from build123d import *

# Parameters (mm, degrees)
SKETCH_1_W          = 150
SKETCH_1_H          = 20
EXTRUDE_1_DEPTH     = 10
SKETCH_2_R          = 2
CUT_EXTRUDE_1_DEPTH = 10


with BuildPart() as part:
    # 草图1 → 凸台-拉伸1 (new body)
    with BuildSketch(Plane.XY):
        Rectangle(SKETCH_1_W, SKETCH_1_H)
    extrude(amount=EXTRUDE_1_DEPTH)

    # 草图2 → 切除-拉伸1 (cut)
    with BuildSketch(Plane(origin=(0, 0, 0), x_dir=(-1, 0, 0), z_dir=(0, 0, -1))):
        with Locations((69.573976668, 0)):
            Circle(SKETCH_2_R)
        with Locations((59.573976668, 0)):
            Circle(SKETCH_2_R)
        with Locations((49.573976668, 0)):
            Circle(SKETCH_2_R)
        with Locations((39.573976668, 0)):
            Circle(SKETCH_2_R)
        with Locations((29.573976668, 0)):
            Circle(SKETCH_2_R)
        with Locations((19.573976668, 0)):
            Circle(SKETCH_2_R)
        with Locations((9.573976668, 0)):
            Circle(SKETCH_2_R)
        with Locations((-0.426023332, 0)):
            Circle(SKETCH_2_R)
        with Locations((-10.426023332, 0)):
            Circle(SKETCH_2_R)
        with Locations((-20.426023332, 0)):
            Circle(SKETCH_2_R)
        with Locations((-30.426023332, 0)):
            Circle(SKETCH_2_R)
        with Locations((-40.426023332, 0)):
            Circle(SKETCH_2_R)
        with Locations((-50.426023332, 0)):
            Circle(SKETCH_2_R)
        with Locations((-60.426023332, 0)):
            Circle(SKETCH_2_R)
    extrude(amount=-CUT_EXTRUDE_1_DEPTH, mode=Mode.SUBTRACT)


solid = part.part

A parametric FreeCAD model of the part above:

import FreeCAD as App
import Part
import Sketcher
from FreeCAD import Vector

doc = App.newDocument("Part")
params = doc.addObject("Spreadsheet::Sheet", "Params")
for row, (alias, value) in enumerate([
    ("sketch1_width", "150 mm"),
    ("sketch1_height", "20 mm"),
    ("pad1_length", "10 mm"),
    ("sketch2_diameter", "4 mm"),
    ("pocket1_length", "10 mm"),
], start=1):
    params.set(f"A{row}", alias)
    params.set(f"B{row}", "=" + value)
    params.setAlias(f"B{row}", alias)

body = doc.addObject("PartDesign::Body", "Body")

sketch1 = body.newObject("Sketcher::SketchObject", "Sketch")
sketch1.AttachmentSupport = (doc.getObject("XY_Plane"), [""])
sketch1.MapMode = "FlatFace"
sketch1.addGeometry([
    Part.LineSegment(Vector(-75, 10, 0), Vector(-75, -10, 0)),
    Part.LineSegment(Vector(-75, -10, 0), Vector(75, -10, 0)),
    Part.LineSegment(Vector(75, -10, 0), Vector(75, 10, 0)),
    Part.LineSegment(Vector(75, 10, 0), Vector(-75, 10, 0)),
], False)
sketch1.addConstraint([
    Sketcher.Constraint("Coincident", 0, 2, 1, 1),
    Sketcher.Constraint("Coincident", 1, 2, 2, 1),
    Sketcher.Constraint("Coincident", 2, 2, 3, 1),
    Sketcher.Constraint("Coincident", 3, 2, 0, 1),
    Sketcher.Constraint("Vertical", 0),
    Sketcher.Constraint("Horizontal", 1),
    Sketcher.Constraint("Vertical", 2),
    Sketcher.Constraint("Horizontal", 3),
    Sketcher.Constraint("Symmetric", 0, 2, 2, 2, -1, 1),
    Sketcher.Constraint("DistanceX", 1, 1, 1, 2, 150.0),
    Sketcher.Constraint("DistanceY", 0, 2, 0, 1, 20.0),
])
sketch1.setExpression("Constraints[9]", "Params.sketch1_width")
sketch1.setExpression("Constraints[10]", "Params.sketch1_height")
pad1 = body.newObject("PartDesign::Pad", "Pad")
pad1.Profile = sketch1
pad1.setExpression("Length", "Params.pad1_length")

sketch2 = body.newObject("Sketcher::SketchObject", "Sketch001")
sketch2.AttachmentSupport = (doc.getObject("XY_Plane"), [""])
sketch2.MapMode = "FlatFace"
sketch2.addGeometry([
    Part.Circle(Vector(-69.6, 0, 0), Vector(0, 0, 1), 2),
    Part.Circle(Vector(-59.6, 0, 0), Vector(0, 0, 1), 2),
    Part.Circle(Vector(-49.6, 0, 0), Vector(0, 0, 1), 2),
    Part.Circle(Vector(-39.6, 0, 0), Vector(0, 0, 1), 2),
    Part.Circle(Vector(-29.6, 0, 0), Vector(0, 0, 1), 2),
    Part.Circle(Vector(-19.6, 0, 0), Vector(0, 0, 1), 2),
    Part.Circle(Vector(-9.6, 0, 0), Vector(0, 0, 1), 2),
    Part.Circle(Vector(0.4, 0, 0), Vector(0, 0, 1), 2),
    Part.Circle(Vector(10.4, 0, 0), Vector(0, 0, 1), 2),
    Part.Circle(Vector(20.4, 0, 0), Vector(0, 0, 1), 2),
    Part.Circle(Vector(30.4, 0, 0), Vector(0, 0, 1), 2),
    Part.Circle(Vector(40.4, 0, 0), Vector(0, 0, 1), 2),
    Part.Circle(Vector(50.4, 0, 0), Vector(0, 0, 1), 2),
    Part.Circle(Vector(60.4, 0, 0), Vector(0, 0, 1), 2),
], False)
sketch2.addConstraint([
    Sketcher.Constraint("Equal", 0, 1),
    Sketcher.Constraint("Equal", 1, 2),
    Sketcher.Constraint("Equal", 2, 3),
    Sketcher.Constraint("Equal", 3, 4),
    Sketcher.Constraint("Equal", 4, 5),
    Sketcher.Constraint("Equal", 5, 6),
    Sketcher.Constraint("Equal", 6, 7),
    Sketcher.Constraint("Equal", 7, 8),
    Sketcher.Constraint("Equal", 8, 9),
    Sketcher.Constraint("Equal", 9, 10),
    Sketcher.Constraint("Equal", 10, 11),
    Sketcher.Constraint("Equal", 11, 12),
    Sketcher.Constraint("Equal", 12, 13),
    Sketcher.Constraint("PointOnObject", 0, 3, -1),
    Sketcher.Constraint("PointOnObject", 1, 3, -1),
    Sketcher.Constraint("PointOnObject", 2, 3, -1),
    Sketcher.Constraint("PointOnObject", 3, 3, -1),
    Sketcher.Constraint("PointOnObject", 4, 3, -1),
    Sketcher.Constraint("PointOnObject", 5, 3, -1),
    Sketcher.Constraint("PointOnObject", 6, 3, -1),
    Sketcher.Constraint("PointOnObject", 7, 3, -1),
    Sketcher.Constraint("PointOnObject", 8, 3, -1),
    Sketcher.Constraint("PointOnObject", 9, 3, -1),
    Sketcher.Constraint("PointOnObject", 10, 3, -1),
    Sketcher.Constraint("PointOnObject", 11, 3, -1),
    Sketcher.Constraint("PointOnObject", 12, 3, -1),
    Sketcher.Constraint("PointOnObject", 13, 3, -1),
    Sketcher.Constraint("Diameter", 0, 4.0),
    Sketcher.Constraint("DistanceX", 0, 3, 1, 3, 10.0),
    Sketcher.Constraint("DistanceX", 1, 3, 2, 3, 10.0),
    Sketcher.Constraint("DistanceX", 2, 3, 3, 3, 10.0),
    Sketcher.Constraint("DistanceX", 3, 3, 4, 3, 10.0),
    Sketcher.Constraint("DistanceX", 4, 3, 5, 3, 10.0),
    Sketcher.Constraint("DistanceX", 5, 3, 6, 3, 10.0),
    Sketcher.Constraint("DistanceX", 6, 3, 7, 3, 10.0),
    Sketcher.Constraint("DistanceX", 7, 3, 8, 3, 10.0),
    Sketcher.Constraint("DistanceX", 8, 3, 9, 3, 10.0),
    Sketcher.Constraint("DistanceX", 9, 3, 10, 3, 10.0),
    Sketcher.Constraint("DistanceX", 10, 3, 11, 3, 10.0),
    Sketcher.Constraint("DistanceX", 11, 3, 12, 3, 10.0),
    Sketcher.Constraint("DistanceX", 12, 3, 13, 3, 10.0),
    Sketcher.Constraint("DistanceX", 0, 3, -1, 1, 69.573977),
])
sketch2.setExpression("Constraints[27]", "Params.sketch2_diameter")
pocket1 = body.newObject("PartDesign::Pocket", "Pocket")
pocket1.Profile = sketch2
pocket1.setExpression("Length", "Params.pocket1_length")
pocket1.Reversed = True

doc.recompute()
